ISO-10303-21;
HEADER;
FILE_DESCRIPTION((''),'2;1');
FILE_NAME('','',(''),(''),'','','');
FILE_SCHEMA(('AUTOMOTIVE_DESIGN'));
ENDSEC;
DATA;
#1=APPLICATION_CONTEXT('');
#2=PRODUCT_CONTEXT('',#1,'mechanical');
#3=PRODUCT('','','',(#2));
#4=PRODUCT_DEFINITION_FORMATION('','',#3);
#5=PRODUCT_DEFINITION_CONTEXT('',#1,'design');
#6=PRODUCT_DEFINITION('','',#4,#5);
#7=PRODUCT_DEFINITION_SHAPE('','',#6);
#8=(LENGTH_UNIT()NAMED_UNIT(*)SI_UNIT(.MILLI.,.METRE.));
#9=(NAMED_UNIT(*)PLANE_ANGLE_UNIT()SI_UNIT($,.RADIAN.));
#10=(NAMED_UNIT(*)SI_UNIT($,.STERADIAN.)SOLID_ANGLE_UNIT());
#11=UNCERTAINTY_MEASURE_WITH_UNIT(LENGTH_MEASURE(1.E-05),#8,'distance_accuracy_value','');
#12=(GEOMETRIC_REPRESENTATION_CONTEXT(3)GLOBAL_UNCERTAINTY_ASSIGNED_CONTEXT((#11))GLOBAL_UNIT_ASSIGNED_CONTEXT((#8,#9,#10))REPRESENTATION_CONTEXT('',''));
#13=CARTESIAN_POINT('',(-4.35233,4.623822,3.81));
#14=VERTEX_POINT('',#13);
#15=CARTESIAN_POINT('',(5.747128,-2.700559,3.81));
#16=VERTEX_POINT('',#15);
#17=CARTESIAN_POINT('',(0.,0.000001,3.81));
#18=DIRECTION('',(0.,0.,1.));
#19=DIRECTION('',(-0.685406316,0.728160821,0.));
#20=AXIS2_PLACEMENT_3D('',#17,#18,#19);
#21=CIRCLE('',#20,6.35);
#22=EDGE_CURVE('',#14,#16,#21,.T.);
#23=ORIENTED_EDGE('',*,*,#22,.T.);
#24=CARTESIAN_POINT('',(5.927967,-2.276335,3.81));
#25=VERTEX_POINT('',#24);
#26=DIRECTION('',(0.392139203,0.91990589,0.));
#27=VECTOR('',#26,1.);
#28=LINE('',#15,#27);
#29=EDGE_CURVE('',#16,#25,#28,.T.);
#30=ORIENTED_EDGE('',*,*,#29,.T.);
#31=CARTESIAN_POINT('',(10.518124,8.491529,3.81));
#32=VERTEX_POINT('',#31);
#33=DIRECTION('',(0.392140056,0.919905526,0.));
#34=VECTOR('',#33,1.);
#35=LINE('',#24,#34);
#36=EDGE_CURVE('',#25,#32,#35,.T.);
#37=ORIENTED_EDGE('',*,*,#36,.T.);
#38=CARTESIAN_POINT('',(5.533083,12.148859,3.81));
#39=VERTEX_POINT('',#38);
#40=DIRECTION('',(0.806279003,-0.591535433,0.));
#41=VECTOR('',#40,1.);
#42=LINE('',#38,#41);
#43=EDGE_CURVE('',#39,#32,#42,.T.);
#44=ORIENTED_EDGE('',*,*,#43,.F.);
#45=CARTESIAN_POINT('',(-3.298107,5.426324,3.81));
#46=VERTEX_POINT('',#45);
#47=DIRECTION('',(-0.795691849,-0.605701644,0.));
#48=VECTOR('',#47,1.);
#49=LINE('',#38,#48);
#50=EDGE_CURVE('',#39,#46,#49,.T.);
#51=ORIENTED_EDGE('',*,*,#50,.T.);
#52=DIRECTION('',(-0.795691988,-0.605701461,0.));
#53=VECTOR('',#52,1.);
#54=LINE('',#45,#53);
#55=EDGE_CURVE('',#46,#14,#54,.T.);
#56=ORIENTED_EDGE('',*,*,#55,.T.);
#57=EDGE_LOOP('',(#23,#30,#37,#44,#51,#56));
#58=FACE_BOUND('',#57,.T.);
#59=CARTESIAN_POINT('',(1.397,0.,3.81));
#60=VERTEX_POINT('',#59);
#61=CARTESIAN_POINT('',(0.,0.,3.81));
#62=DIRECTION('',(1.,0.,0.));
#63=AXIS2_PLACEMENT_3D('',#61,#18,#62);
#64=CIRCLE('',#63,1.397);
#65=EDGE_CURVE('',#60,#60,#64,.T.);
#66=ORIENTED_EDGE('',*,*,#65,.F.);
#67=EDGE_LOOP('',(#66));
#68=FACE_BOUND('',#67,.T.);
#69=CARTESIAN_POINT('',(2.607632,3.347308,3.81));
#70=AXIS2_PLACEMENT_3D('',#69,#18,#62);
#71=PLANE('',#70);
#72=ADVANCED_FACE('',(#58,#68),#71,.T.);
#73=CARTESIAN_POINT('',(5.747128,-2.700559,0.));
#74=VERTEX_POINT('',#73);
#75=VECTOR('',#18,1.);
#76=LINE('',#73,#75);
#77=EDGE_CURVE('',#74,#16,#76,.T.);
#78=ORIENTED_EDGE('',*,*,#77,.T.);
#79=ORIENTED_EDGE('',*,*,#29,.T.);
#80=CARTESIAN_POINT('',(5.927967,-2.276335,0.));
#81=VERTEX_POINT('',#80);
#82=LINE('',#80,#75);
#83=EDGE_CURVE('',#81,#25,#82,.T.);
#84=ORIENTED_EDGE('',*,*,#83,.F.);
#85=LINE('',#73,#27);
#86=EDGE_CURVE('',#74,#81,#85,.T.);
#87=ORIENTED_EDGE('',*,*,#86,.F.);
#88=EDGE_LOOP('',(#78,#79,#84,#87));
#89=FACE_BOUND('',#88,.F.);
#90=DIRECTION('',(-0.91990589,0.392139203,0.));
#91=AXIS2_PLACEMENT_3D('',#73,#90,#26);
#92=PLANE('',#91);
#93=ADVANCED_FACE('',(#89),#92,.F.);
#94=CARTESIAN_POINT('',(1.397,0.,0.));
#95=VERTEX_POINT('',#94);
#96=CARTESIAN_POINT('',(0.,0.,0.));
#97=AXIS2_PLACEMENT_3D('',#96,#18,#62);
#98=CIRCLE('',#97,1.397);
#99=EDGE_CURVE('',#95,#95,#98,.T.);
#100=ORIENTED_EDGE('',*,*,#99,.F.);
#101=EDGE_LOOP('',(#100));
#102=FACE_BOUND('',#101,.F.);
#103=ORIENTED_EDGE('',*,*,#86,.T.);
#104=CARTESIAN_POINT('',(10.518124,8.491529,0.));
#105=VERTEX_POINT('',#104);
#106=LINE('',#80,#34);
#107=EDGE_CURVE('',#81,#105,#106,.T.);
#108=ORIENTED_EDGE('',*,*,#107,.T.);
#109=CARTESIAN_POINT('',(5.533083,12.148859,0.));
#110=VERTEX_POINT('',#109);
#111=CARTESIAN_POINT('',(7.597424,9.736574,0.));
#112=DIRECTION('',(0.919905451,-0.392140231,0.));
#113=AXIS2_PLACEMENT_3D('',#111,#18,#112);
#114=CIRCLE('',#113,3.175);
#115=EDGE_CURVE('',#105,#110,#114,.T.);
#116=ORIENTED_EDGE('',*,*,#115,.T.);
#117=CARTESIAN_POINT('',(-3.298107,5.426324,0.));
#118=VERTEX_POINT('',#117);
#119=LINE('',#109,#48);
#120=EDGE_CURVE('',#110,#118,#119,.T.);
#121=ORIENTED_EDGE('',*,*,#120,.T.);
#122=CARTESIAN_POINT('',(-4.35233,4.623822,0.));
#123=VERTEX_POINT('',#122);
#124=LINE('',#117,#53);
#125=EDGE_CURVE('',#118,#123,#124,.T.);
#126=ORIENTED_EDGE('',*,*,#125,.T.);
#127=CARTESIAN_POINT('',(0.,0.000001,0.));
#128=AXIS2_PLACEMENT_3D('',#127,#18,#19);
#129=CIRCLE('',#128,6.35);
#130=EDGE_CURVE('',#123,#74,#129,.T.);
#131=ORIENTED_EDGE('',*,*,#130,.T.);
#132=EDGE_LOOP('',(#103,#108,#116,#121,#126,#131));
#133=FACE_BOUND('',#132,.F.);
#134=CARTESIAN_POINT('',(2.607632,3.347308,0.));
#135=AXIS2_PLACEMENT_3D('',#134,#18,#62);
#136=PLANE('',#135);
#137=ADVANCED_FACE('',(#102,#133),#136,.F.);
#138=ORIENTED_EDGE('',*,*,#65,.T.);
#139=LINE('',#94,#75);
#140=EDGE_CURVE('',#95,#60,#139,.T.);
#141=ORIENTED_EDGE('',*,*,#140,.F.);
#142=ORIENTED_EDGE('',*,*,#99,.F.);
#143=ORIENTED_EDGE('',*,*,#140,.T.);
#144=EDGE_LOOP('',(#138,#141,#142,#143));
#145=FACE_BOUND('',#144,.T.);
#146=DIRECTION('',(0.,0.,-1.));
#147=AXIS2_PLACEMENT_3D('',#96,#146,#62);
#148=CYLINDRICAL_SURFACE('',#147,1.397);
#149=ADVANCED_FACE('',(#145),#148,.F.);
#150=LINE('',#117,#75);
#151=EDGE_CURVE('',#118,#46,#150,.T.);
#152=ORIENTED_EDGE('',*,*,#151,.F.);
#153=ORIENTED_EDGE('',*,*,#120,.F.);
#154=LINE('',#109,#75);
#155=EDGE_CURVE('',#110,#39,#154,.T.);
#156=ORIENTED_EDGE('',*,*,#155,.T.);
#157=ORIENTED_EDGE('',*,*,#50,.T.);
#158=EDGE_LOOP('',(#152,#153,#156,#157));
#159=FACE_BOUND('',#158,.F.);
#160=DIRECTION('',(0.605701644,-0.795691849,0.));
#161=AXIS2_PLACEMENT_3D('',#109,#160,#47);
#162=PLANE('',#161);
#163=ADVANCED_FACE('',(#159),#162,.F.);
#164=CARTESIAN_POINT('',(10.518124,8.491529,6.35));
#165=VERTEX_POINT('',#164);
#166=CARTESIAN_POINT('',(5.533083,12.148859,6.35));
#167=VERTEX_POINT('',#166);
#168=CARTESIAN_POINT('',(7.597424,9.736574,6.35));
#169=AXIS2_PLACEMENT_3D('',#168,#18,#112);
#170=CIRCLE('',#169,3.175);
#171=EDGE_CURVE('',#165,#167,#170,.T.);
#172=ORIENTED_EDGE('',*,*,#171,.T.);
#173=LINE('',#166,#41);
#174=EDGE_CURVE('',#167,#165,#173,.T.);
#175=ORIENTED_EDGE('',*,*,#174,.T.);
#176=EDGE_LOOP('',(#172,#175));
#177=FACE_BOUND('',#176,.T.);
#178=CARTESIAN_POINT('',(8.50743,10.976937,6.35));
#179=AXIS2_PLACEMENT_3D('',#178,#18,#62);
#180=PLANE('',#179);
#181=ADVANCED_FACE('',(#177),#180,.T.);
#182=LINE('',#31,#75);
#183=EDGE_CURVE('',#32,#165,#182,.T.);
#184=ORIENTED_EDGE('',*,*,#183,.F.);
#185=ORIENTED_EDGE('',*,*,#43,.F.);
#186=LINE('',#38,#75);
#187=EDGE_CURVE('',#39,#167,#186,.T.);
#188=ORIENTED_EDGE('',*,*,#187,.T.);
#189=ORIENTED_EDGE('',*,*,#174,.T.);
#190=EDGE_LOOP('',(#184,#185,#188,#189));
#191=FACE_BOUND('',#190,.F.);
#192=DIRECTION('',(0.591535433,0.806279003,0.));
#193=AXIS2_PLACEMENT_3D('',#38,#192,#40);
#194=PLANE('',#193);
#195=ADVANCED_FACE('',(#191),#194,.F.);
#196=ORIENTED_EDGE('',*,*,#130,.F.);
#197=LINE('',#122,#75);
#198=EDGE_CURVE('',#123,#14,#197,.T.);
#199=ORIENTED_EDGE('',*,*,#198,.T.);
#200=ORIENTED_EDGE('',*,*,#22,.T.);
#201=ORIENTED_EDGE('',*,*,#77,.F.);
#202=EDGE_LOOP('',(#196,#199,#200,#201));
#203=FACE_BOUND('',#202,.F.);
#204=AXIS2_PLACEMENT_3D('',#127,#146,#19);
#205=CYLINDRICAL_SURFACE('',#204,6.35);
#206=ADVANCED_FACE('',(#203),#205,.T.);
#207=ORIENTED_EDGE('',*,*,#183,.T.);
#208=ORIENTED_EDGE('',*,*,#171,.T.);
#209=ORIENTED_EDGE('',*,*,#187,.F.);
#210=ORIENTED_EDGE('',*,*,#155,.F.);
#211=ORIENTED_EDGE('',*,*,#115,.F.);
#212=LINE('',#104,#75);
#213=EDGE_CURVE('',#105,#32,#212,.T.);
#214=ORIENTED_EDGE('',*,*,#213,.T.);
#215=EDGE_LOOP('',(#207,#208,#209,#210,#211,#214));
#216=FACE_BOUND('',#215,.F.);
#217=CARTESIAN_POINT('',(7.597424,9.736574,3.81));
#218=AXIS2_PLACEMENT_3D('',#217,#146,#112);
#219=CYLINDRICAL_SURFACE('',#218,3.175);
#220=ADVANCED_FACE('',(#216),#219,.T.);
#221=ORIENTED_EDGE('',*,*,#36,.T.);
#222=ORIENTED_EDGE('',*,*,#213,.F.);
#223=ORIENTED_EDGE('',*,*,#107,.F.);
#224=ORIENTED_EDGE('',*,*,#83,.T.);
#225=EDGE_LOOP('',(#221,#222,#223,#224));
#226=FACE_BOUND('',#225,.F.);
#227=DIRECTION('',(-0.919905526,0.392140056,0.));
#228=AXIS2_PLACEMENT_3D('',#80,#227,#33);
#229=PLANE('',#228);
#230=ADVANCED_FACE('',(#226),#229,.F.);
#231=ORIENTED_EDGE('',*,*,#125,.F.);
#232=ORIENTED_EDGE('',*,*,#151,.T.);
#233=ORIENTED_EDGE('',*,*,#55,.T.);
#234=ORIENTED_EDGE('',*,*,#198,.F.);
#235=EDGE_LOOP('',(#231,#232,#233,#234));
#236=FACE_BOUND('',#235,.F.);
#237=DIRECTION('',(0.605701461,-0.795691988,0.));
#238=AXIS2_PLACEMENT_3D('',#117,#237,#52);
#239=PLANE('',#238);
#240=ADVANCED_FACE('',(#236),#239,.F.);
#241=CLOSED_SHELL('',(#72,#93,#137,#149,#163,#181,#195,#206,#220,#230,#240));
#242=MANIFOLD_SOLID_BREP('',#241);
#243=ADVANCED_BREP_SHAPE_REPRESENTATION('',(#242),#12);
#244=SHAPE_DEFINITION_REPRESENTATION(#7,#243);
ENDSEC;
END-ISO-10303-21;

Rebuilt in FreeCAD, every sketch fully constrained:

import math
import FreeCAD as App
import Part
import Sketcher
Q = App.Units.Quantity

doc = App.newDocument("Part")
body = doc.addObject("PartDesign::Body", "Body")

# Sketch on XY plane
sketch1 = body.newObject("Sketcher::SketchObject", "Sketch")
sketch1.AttachmentSupport = (doc.getObject("XY_Plane"), [""])
sketch1.MapMode = "FlatFace"
sketch1.addGeometry([
    Part.LineSegment(App.Vector(5.53, 12.15, 0), App.Vector(-3.3, 5.43, 0)),  # 0
    Part.LineSegment(App.Vector(-3.3, 5.43, 0), App.Vector(-4.35, 4.62, 0)),  # 1
    Part.ArcOfCircle(Part.Circle(App.Vector(0, 0, 0), App.Vector(0, 0, 1), 6.35), math.radians(133), math.radians(335)),  # 2
    Part.LineSegment(App.Vector(5.75, -2.7, 0), App.Vector(5.93, -2.28, 0)),  # 3
    Part.LineSegment(App.Vector(5.93, -2.28, 0), App.Vector(10.52, 8.49, 0)),  # 4
    Part.ArcOfCircle(Part.Circle(App.Vector(7.6, 9.74, 0), App.Vector(0, 0, 1), 3.17), math.radians(-23), math.radians(131)),  # 5
    Part.Circle(App.Vector(0, 0, 0), App.Vector(0, 0, 1), 1.4),  # 6
], False)
sketch1.addConstraint([
    Sketcher.Constraint("Coincident", 0, 2, 1, 1),
    Sketcher.Constraint("Coincident", 1, 2, 2, 1),
    Sketcher.Constraint("Coincident", 2, 2, 3, 1),
    Sketcher.Constraint("Coincident", 3, 2, 4, 1),
    Sketcher.Constraint("Tangent", 4, 2, 5, 1),
    Sketcher.Constraint("Coincident", 5, 2, 0, 1),
    Sketcher.Constraint("Coincident", 2, 3, -1, 1),
    Sketcher.Constraint("Coincident", 6, 3, -1, 1),
    Sketcher.Constraint("Parallel", 0, 1),
    Sketcher.Constraint("Parallel", 3, 4),
    Sketcher.Constraint("Diameter", 6, Q("0.11 in")),
    Sketcher.Constraint("Radius", 2, Q("0.25 in")),
    Sketcher.Constraint("Radius", 5, Q("0.125 in")),
    Sketcher.Constraint("DistanceX", 5, 3, 4, 2, Q("2.9207 mm")),
    Sketcher.Constraint("Distance", 3, Q("0.46116 mm")),
    Sketcher.Constraint("DistanceX", 1, 2, -1, 1, Q("4.35233 mm")),
    Sketcher.Constraint("DistanceX", -1, 1, 2, 2, Q("5.747128 mm")),
    Sketcher.Constraint("DistanceY", -1, 1, 4, 2, Q("8.491529 mm")),
    Sketcher.Constraint("DistanceY", -1, 1, 5, 2, Q("12.148859 mm")),
    Sketcher.Constraint("DistanceX", 0, 2, 5, 3, Q("10.895531 mm")),
])
pad1 = body.newObject("PartDesign::Pad", "Pad")
pad1.Profile = sketch1
pad1.Length = Q("0.15 in")

# Sketch on XY plane
sketch2 = body.newObject("Sketcher::SketchObject", "Sketch001")
sketch2.AttachmentSupport = (doc.getObject("XY_Plane"), [""])
sketch2.MapMode = "FlatFace"
sketch2.AttachmentOffset = App.Placement(App.Vector(0, 0, 0.15 * 25.4), App.Rotation())
sketch2.addGeometry([
    Part.LineSegment(App.Vector(5.5, 12.1, 0), App.Vector(10.5, 8.5, 0)),
    Part.ArcOfCircle(Part.Circle(App.Vector(7.6, 9.7, 0), App.Vector(0, 0, 1), 3.2), math.radians(-23), math.radians(131)),
], False)
sketch2.addConstraint([
    Sketcher.Constraint("Coincident", 0, 1, 1, 2),
    Sketcher.Constraint("Coincident", 1, 1, 0, 2),
    Sketcher.Constraint("Radius", 1, Q("0.125 in")),
    Sketcher.Constraint("DistanceX", 1, 3, 1, 1, Q("2.9207 mm")),
    Sketcher.Constraint("DistanceY", -1, 1, 0, 1, Q("12.148859 mm")),
    Sketcher.Constraint("DistanceY", -1, 1, 1, 1, Q("8.491529 mm")),
    Sketcher.Constraint("DistanceX", -1, 1, 1, 3, Q("7.597424 mm")),
])
pad2 = body.newObject("PartDesign::Pad", "Pad001")
pad2.Profile = sketch2
pad2.Length = Q("0.1 in")

doc.recompute()
